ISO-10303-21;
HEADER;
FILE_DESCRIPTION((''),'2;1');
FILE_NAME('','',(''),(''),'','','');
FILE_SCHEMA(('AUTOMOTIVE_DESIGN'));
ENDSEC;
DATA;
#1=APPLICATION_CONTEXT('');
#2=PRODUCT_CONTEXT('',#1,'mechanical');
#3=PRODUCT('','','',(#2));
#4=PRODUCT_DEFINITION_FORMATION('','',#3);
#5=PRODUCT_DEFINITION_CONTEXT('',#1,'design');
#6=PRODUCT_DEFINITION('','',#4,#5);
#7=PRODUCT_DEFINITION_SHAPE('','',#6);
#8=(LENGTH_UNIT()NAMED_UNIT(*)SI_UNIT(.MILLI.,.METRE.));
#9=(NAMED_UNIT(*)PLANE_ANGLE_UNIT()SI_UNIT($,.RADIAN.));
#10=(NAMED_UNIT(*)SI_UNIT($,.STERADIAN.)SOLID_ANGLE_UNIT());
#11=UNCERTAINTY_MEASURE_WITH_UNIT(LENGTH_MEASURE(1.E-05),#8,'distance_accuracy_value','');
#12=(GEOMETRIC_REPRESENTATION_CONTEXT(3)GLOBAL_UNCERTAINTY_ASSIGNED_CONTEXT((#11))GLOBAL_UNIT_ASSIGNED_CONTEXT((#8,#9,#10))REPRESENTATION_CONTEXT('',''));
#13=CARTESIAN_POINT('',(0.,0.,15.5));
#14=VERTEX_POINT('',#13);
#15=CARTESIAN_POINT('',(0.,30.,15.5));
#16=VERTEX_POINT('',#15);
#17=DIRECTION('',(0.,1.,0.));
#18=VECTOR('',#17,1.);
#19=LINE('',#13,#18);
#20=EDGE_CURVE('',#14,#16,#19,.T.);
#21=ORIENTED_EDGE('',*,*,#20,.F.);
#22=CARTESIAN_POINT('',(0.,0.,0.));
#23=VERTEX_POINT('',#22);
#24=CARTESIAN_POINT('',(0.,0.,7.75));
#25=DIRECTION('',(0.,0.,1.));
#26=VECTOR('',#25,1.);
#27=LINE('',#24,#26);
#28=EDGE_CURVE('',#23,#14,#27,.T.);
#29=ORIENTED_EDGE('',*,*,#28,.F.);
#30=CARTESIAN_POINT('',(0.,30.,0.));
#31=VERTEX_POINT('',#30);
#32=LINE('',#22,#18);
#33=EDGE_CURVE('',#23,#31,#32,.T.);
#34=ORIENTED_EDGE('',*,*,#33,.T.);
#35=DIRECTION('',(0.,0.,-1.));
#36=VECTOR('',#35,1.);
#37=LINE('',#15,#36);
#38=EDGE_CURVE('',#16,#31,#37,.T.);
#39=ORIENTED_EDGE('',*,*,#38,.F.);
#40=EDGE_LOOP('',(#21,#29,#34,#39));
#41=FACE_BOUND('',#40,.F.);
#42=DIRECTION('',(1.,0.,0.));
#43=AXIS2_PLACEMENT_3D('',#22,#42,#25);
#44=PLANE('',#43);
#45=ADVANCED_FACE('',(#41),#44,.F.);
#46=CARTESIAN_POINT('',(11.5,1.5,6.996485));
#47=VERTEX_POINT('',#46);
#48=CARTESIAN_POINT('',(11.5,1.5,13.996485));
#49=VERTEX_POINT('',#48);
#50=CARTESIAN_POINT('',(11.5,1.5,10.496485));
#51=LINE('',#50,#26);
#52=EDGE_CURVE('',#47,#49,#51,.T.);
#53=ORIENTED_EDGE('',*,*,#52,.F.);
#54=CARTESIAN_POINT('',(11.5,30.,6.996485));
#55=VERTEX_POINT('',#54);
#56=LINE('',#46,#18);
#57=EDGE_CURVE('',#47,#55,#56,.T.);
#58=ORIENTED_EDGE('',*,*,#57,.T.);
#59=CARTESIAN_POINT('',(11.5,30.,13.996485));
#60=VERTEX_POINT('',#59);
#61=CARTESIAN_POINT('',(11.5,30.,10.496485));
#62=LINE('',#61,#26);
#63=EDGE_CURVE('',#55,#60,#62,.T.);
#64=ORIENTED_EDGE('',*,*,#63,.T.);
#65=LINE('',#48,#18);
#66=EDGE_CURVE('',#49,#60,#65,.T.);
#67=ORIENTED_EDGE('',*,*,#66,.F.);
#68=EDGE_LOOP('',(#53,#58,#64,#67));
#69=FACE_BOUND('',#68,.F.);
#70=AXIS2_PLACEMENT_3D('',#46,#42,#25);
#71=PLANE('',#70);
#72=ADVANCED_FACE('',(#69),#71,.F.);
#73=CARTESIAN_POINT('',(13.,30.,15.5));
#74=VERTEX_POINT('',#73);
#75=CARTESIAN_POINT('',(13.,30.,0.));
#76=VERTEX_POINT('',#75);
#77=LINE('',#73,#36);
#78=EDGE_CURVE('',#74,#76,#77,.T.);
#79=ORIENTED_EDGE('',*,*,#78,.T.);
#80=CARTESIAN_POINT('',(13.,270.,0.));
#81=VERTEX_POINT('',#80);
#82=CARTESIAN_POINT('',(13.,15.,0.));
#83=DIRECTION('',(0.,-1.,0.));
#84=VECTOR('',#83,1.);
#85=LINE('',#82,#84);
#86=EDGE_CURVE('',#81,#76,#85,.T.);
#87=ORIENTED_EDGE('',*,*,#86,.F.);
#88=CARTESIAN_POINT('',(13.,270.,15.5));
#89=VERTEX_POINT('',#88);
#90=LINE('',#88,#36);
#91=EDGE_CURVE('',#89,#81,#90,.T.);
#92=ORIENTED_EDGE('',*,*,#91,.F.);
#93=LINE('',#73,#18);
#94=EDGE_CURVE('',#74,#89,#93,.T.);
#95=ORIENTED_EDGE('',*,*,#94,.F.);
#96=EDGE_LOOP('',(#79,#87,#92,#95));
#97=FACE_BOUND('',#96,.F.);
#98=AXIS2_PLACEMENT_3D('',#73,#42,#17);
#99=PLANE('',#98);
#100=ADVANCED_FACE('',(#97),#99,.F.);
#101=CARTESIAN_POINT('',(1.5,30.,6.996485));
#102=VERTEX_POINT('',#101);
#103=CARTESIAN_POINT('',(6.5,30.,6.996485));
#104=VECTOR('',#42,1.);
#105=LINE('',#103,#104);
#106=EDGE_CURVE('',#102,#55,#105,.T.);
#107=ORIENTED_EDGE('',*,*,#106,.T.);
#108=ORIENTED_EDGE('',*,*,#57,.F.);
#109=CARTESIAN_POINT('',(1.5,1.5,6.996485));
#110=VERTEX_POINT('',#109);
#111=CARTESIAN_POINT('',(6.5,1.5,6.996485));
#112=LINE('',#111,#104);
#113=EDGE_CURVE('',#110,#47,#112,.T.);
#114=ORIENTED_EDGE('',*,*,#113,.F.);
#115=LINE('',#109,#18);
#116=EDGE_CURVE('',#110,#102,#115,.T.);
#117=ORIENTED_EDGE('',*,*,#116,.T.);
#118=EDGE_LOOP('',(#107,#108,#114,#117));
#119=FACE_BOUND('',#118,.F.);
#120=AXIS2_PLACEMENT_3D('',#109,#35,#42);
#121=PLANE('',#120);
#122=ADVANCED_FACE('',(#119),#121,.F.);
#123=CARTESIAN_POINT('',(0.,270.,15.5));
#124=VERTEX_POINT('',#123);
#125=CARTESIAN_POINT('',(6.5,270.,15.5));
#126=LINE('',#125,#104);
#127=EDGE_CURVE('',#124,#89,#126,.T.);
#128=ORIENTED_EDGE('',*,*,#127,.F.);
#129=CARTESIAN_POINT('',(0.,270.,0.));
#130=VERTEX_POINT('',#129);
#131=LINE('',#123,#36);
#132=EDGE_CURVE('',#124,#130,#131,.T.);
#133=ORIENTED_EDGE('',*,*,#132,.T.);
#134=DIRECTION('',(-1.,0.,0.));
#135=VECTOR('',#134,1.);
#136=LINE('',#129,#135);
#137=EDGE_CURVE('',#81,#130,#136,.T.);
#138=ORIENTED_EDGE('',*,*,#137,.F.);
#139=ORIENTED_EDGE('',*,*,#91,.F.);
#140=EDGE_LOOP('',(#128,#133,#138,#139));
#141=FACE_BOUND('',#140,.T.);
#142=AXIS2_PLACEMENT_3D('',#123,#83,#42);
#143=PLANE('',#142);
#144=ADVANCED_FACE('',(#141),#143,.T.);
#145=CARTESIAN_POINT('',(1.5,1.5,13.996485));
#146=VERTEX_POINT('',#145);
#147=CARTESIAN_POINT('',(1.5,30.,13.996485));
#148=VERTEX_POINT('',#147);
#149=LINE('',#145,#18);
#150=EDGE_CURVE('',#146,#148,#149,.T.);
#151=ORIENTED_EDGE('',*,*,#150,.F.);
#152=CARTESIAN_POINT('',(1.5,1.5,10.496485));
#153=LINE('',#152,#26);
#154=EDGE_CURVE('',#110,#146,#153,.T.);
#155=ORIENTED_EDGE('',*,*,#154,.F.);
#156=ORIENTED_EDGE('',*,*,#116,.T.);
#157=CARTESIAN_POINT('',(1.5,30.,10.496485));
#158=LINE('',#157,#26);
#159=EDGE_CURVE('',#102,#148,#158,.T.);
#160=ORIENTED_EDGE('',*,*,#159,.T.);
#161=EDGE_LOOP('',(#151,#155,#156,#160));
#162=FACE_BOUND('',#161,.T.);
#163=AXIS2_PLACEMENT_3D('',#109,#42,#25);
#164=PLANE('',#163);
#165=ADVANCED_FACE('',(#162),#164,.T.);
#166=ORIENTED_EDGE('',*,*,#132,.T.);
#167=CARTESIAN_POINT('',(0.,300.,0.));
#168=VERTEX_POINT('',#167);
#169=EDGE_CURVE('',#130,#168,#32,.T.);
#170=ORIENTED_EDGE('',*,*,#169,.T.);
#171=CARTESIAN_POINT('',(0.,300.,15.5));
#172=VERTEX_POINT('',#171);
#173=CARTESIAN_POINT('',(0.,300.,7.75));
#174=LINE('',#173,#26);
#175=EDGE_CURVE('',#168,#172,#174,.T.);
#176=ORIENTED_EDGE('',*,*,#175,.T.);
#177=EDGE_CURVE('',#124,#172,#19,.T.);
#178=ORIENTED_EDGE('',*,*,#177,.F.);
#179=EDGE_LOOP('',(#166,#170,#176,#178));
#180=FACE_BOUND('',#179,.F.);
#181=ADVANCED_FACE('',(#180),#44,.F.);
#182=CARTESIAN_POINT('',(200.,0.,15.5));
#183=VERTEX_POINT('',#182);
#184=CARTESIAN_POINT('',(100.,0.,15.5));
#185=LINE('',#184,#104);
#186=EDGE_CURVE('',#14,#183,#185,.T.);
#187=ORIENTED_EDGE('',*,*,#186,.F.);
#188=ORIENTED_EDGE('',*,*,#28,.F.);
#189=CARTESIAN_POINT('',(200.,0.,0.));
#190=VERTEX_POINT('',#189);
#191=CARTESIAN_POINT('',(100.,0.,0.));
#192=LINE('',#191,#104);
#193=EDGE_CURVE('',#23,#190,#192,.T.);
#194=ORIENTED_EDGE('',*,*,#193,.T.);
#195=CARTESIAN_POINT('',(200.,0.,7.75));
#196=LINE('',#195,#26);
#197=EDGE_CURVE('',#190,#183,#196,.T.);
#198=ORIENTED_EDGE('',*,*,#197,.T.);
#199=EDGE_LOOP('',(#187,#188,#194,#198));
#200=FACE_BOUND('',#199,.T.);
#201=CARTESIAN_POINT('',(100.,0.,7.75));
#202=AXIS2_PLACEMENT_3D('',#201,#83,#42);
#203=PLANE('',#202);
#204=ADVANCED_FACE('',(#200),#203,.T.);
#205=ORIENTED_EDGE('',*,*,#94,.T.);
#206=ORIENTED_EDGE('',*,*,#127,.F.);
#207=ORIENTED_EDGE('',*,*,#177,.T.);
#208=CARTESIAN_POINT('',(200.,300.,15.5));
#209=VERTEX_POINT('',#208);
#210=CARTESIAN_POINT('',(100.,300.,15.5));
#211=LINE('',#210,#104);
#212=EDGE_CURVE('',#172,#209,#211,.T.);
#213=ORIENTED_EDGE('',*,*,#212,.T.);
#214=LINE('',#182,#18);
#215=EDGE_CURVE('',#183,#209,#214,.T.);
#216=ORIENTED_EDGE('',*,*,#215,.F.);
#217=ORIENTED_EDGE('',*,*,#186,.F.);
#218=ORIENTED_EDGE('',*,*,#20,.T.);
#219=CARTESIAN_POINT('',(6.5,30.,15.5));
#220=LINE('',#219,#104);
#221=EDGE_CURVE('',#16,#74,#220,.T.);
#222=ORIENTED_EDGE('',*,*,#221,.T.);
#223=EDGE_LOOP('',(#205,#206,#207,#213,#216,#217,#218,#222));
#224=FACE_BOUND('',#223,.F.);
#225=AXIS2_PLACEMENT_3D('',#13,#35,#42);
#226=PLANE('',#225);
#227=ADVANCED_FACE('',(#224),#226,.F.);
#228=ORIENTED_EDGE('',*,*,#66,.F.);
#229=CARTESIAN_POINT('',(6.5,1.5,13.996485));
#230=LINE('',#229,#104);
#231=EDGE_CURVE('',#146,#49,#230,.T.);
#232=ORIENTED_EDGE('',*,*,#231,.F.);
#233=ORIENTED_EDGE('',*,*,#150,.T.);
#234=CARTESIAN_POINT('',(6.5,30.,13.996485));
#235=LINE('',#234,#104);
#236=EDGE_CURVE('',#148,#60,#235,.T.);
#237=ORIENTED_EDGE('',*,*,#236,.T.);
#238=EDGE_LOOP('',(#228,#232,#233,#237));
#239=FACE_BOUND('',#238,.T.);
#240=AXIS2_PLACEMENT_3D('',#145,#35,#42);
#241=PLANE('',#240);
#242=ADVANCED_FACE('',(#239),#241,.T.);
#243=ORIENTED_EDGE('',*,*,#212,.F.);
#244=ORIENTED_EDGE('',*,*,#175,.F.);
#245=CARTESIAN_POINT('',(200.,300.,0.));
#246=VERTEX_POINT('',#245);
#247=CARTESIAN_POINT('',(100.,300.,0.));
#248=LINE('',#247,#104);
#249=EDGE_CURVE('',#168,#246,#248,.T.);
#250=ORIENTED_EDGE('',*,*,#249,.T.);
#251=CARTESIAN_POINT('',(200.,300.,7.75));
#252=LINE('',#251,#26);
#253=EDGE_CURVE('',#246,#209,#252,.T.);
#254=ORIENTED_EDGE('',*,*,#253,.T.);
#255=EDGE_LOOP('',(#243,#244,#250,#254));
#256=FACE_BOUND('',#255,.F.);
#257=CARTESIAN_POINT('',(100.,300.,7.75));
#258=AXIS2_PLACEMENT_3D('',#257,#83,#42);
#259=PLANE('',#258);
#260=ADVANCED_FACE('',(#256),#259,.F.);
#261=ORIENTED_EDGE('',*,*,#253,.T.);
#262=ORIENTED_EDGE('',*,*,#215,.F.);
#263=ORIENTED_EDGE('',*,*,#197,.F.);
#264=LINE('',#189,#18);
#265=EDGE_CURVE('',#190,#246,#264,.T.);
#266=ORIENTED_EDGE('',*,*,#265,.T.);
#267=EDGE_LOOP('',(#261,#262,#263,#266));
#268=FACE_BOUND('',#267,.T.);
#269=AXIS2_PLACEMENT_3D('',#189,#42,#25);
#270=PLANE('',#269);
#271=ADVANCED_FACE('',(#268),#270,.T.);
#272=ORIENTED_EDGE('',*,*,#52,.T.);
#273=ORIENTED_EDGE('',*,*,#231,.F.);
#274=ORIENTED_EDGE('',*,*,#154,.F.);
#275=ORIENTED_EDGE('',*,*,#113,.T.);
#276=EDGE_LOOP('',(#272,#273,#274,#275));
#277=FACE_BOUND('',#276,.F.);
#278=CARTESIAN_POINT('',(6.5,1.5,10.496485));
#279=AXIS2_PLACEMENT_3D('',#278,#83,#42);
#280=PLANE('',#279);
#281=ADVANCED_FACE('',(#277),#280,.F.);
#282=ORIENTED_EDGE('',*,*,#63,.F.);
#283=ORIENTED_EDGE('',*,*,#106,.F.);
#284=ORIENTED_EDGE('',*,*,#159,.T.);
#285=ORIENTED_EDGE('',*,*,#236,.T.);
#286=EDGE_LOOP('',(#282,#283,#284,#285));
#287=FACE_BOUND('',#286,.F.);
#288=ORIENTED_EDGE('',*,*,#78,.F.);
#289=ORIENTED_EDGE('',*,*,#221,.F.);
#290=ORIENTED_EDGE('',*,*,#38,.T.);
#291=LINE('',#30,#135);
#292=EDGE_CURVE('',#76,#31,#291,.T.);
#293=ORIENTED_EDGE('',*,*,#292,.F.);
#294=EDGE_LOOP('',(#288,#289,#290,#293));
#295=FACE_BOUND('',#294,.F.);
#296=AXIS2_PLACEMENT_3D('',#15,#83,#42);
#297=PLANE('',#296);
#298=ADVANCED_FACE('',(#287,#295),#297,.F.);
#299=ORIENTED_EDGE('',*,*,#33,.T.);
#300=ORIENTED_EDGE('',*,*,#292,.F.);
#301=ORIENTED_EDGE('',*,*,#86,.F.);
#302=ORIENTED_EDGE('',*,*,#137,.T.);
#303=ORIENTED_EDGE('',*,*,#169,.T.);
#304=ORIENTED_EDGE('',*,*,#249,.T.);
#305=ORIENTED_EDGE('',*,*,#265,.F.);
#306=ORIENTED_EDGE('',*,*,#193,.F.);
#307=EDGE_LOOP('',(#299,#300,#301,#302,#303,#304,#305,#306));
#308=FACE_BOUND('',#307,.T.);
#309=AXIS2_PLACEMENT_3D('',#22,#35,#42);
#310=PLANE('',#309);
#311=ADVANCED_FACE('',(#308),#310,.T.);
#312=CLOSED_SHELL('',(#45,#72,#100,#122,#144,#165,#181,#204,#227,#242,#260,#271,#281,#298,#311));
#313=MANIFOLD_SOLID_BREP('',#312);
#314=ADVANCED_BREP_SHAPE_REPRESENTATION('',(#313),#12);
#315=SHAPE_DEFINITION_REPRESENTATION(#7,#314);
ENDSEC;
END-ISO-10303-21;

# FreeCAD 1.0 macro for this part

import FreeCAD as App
import Part
import Sketcher
from FreeCAD import Vector
Q = App.Units.Quantity


def add_polygon(sketch, points):
    """Adds a closed chain of lines whose ends are joined by coincident constraints."""
    first, n = sketch.GeometryCount, len(points)
    for a, b in zip(points, points[1:] + points[:1]):
        sketch.addGeometry(Part.LineSegment(App.Vector(*a, 0), App.Vector(*b, 0)), False)
    for i in range(n):
        sketch.addConstraint(Sketcher.Constraint("Coincident", first + i, 2, first + (i + 1) % n, 1))

doc = App.newDocument("Part")
body = doc.addObject("PartDesign::Body", "Body")

# Sketch on XZ plane
sketch1 = body.newObject("Sketcher::SketchObject", "Sketch")
sketch1.AttachmentSupport = (doc.getObject("XZ_Plane"), [""])
sketch1.MapMode = "FlatFace"
add_polygon(sketch1, [(0, 16), (0, 0), (200, 0), (200, 16)])  # lines 0-3
sketch1.addConstraint(Sketcher.Constraint("Vertical", 0))
sketch1.addConstraint(Sketcher.Constraint("Horizontal", 1))
sketch1.addConstraint(Sketcher.Constraint("Vertical", 2))
sketch1.addConstraint(Sketcher.Constraint("Horizontal", 3))
sketch1.addConstraint(Sketcher.Constraint("Coincident", 0, 2, -1, 1))
sketch1.addConstraint(Sketcher.Constraint("DistanceX", 1, 1, 1, 2, Q("200 mm")))
sketch1.addConstraint(Sketcher.Constraint("DistanceY", 0, 2, 0, 1, Q("15.5 mm")))
pad1 = body.newObject("PartDesign::Pad", "Pad")
pad1.Profile = sketch1
pad1.Length = 300
pad1.Reversed = True

# Sketch on XY plane
sketch2 = body.newObject("Sketcher::SketchObject", "Sketch001")
sketch2.AttachmentSupport = (doc.getObject("XY_Plane"), [""])
sketch2.MapMode = "FlatFace"
sketch2.AttachmentOffset = App.Placement(Vector(0, 0, 15.5), App.Rotation())
add_polygon(sketch2, [(0, 270), (0, 30), (13, 30), (13, 270)])  # lines 0-3
sketch2.addConstraint(Sketcher.Constraint("Vertical", 0))
sketch2.addConstraint(Sketcher.Constraint("Horizontal", 1))
sketch2.addConstraint(Sketcher.Constraint("Vertical", 2))
sketch2.addConstraint(Sketcher.Constraint("Horizontal", 3))
sketch2.addConstraint(Sketcher.Constraint("PointOnObject", 0, 2, -2))
sketch2.addConstraint(Sketcher.Constraint("DistanceX", 1, 1, 1, 2, Q("13 mm")))
sketch2.addConstraint(Sketcher.Constraint("DistanceY", 0, 2, 0, 1, Q("240 mm")))
sketch2.addConstraint(Sketcher.Constraint("DistanceY", -1, 1, 0, 2, Q("30 mm")))
pocket1 = body.newObject("PartDesign::Pocket", "Pocket")
pocket1.Profile = sketch2
pocket1.Type = "ThroughAll"

# Sketch on XZ plane
sketch3 = body.newObject("Sketcher::SketchObject", "Sketch002")
sketch3.AttachmentSupport = (doc.getObject("XZ_Plane"), [""])
sketch3.MapMode = "FlatFace"
sketch3.AttachmentOffset = App.Placement(Vector(0, 0, -1.5), App.Rotation())
add_polygon(sketch3, [(2, 14), (2, 7), (12, 7), (12, 14)])  # lines 0-3
sketch3.addConstraint(Sketcher.Constraint("Vertical", 0))
sketch3.addConstraint(Sketcher.Constraint("Horizontal", 1))
sketch3.addConstraint(Sketcher.Constraint("Vertical", 2))
sketch3.addConstraint(Sketcher.Constraint("Horizontal", 3))
sketch3.addConstraint(Sketcher.Constraint("DistanceX", 1, 1, 1, 2, Q("10 mm")))
sketch3.addConstraint(Sketcher.Constraint("DistanceY", 0, 2, 0, 1, Q("7 mm")))
sketch3.addConstraint(Sketcher.Constraint("DistanceX", -1, 1, 0, 2, Q("1.5 mm")))
sketch3.addConstraint(Sketcher.Constraint("DistanceY", -1, 1, 0, 2, Q("6.996485 mm")))
pocket2 = body.newObject("PartDesign::Pocket", "Pocket001")
pocket2.Profile = sketch3
pocket2.Length = 28.5

doc.recompute()
